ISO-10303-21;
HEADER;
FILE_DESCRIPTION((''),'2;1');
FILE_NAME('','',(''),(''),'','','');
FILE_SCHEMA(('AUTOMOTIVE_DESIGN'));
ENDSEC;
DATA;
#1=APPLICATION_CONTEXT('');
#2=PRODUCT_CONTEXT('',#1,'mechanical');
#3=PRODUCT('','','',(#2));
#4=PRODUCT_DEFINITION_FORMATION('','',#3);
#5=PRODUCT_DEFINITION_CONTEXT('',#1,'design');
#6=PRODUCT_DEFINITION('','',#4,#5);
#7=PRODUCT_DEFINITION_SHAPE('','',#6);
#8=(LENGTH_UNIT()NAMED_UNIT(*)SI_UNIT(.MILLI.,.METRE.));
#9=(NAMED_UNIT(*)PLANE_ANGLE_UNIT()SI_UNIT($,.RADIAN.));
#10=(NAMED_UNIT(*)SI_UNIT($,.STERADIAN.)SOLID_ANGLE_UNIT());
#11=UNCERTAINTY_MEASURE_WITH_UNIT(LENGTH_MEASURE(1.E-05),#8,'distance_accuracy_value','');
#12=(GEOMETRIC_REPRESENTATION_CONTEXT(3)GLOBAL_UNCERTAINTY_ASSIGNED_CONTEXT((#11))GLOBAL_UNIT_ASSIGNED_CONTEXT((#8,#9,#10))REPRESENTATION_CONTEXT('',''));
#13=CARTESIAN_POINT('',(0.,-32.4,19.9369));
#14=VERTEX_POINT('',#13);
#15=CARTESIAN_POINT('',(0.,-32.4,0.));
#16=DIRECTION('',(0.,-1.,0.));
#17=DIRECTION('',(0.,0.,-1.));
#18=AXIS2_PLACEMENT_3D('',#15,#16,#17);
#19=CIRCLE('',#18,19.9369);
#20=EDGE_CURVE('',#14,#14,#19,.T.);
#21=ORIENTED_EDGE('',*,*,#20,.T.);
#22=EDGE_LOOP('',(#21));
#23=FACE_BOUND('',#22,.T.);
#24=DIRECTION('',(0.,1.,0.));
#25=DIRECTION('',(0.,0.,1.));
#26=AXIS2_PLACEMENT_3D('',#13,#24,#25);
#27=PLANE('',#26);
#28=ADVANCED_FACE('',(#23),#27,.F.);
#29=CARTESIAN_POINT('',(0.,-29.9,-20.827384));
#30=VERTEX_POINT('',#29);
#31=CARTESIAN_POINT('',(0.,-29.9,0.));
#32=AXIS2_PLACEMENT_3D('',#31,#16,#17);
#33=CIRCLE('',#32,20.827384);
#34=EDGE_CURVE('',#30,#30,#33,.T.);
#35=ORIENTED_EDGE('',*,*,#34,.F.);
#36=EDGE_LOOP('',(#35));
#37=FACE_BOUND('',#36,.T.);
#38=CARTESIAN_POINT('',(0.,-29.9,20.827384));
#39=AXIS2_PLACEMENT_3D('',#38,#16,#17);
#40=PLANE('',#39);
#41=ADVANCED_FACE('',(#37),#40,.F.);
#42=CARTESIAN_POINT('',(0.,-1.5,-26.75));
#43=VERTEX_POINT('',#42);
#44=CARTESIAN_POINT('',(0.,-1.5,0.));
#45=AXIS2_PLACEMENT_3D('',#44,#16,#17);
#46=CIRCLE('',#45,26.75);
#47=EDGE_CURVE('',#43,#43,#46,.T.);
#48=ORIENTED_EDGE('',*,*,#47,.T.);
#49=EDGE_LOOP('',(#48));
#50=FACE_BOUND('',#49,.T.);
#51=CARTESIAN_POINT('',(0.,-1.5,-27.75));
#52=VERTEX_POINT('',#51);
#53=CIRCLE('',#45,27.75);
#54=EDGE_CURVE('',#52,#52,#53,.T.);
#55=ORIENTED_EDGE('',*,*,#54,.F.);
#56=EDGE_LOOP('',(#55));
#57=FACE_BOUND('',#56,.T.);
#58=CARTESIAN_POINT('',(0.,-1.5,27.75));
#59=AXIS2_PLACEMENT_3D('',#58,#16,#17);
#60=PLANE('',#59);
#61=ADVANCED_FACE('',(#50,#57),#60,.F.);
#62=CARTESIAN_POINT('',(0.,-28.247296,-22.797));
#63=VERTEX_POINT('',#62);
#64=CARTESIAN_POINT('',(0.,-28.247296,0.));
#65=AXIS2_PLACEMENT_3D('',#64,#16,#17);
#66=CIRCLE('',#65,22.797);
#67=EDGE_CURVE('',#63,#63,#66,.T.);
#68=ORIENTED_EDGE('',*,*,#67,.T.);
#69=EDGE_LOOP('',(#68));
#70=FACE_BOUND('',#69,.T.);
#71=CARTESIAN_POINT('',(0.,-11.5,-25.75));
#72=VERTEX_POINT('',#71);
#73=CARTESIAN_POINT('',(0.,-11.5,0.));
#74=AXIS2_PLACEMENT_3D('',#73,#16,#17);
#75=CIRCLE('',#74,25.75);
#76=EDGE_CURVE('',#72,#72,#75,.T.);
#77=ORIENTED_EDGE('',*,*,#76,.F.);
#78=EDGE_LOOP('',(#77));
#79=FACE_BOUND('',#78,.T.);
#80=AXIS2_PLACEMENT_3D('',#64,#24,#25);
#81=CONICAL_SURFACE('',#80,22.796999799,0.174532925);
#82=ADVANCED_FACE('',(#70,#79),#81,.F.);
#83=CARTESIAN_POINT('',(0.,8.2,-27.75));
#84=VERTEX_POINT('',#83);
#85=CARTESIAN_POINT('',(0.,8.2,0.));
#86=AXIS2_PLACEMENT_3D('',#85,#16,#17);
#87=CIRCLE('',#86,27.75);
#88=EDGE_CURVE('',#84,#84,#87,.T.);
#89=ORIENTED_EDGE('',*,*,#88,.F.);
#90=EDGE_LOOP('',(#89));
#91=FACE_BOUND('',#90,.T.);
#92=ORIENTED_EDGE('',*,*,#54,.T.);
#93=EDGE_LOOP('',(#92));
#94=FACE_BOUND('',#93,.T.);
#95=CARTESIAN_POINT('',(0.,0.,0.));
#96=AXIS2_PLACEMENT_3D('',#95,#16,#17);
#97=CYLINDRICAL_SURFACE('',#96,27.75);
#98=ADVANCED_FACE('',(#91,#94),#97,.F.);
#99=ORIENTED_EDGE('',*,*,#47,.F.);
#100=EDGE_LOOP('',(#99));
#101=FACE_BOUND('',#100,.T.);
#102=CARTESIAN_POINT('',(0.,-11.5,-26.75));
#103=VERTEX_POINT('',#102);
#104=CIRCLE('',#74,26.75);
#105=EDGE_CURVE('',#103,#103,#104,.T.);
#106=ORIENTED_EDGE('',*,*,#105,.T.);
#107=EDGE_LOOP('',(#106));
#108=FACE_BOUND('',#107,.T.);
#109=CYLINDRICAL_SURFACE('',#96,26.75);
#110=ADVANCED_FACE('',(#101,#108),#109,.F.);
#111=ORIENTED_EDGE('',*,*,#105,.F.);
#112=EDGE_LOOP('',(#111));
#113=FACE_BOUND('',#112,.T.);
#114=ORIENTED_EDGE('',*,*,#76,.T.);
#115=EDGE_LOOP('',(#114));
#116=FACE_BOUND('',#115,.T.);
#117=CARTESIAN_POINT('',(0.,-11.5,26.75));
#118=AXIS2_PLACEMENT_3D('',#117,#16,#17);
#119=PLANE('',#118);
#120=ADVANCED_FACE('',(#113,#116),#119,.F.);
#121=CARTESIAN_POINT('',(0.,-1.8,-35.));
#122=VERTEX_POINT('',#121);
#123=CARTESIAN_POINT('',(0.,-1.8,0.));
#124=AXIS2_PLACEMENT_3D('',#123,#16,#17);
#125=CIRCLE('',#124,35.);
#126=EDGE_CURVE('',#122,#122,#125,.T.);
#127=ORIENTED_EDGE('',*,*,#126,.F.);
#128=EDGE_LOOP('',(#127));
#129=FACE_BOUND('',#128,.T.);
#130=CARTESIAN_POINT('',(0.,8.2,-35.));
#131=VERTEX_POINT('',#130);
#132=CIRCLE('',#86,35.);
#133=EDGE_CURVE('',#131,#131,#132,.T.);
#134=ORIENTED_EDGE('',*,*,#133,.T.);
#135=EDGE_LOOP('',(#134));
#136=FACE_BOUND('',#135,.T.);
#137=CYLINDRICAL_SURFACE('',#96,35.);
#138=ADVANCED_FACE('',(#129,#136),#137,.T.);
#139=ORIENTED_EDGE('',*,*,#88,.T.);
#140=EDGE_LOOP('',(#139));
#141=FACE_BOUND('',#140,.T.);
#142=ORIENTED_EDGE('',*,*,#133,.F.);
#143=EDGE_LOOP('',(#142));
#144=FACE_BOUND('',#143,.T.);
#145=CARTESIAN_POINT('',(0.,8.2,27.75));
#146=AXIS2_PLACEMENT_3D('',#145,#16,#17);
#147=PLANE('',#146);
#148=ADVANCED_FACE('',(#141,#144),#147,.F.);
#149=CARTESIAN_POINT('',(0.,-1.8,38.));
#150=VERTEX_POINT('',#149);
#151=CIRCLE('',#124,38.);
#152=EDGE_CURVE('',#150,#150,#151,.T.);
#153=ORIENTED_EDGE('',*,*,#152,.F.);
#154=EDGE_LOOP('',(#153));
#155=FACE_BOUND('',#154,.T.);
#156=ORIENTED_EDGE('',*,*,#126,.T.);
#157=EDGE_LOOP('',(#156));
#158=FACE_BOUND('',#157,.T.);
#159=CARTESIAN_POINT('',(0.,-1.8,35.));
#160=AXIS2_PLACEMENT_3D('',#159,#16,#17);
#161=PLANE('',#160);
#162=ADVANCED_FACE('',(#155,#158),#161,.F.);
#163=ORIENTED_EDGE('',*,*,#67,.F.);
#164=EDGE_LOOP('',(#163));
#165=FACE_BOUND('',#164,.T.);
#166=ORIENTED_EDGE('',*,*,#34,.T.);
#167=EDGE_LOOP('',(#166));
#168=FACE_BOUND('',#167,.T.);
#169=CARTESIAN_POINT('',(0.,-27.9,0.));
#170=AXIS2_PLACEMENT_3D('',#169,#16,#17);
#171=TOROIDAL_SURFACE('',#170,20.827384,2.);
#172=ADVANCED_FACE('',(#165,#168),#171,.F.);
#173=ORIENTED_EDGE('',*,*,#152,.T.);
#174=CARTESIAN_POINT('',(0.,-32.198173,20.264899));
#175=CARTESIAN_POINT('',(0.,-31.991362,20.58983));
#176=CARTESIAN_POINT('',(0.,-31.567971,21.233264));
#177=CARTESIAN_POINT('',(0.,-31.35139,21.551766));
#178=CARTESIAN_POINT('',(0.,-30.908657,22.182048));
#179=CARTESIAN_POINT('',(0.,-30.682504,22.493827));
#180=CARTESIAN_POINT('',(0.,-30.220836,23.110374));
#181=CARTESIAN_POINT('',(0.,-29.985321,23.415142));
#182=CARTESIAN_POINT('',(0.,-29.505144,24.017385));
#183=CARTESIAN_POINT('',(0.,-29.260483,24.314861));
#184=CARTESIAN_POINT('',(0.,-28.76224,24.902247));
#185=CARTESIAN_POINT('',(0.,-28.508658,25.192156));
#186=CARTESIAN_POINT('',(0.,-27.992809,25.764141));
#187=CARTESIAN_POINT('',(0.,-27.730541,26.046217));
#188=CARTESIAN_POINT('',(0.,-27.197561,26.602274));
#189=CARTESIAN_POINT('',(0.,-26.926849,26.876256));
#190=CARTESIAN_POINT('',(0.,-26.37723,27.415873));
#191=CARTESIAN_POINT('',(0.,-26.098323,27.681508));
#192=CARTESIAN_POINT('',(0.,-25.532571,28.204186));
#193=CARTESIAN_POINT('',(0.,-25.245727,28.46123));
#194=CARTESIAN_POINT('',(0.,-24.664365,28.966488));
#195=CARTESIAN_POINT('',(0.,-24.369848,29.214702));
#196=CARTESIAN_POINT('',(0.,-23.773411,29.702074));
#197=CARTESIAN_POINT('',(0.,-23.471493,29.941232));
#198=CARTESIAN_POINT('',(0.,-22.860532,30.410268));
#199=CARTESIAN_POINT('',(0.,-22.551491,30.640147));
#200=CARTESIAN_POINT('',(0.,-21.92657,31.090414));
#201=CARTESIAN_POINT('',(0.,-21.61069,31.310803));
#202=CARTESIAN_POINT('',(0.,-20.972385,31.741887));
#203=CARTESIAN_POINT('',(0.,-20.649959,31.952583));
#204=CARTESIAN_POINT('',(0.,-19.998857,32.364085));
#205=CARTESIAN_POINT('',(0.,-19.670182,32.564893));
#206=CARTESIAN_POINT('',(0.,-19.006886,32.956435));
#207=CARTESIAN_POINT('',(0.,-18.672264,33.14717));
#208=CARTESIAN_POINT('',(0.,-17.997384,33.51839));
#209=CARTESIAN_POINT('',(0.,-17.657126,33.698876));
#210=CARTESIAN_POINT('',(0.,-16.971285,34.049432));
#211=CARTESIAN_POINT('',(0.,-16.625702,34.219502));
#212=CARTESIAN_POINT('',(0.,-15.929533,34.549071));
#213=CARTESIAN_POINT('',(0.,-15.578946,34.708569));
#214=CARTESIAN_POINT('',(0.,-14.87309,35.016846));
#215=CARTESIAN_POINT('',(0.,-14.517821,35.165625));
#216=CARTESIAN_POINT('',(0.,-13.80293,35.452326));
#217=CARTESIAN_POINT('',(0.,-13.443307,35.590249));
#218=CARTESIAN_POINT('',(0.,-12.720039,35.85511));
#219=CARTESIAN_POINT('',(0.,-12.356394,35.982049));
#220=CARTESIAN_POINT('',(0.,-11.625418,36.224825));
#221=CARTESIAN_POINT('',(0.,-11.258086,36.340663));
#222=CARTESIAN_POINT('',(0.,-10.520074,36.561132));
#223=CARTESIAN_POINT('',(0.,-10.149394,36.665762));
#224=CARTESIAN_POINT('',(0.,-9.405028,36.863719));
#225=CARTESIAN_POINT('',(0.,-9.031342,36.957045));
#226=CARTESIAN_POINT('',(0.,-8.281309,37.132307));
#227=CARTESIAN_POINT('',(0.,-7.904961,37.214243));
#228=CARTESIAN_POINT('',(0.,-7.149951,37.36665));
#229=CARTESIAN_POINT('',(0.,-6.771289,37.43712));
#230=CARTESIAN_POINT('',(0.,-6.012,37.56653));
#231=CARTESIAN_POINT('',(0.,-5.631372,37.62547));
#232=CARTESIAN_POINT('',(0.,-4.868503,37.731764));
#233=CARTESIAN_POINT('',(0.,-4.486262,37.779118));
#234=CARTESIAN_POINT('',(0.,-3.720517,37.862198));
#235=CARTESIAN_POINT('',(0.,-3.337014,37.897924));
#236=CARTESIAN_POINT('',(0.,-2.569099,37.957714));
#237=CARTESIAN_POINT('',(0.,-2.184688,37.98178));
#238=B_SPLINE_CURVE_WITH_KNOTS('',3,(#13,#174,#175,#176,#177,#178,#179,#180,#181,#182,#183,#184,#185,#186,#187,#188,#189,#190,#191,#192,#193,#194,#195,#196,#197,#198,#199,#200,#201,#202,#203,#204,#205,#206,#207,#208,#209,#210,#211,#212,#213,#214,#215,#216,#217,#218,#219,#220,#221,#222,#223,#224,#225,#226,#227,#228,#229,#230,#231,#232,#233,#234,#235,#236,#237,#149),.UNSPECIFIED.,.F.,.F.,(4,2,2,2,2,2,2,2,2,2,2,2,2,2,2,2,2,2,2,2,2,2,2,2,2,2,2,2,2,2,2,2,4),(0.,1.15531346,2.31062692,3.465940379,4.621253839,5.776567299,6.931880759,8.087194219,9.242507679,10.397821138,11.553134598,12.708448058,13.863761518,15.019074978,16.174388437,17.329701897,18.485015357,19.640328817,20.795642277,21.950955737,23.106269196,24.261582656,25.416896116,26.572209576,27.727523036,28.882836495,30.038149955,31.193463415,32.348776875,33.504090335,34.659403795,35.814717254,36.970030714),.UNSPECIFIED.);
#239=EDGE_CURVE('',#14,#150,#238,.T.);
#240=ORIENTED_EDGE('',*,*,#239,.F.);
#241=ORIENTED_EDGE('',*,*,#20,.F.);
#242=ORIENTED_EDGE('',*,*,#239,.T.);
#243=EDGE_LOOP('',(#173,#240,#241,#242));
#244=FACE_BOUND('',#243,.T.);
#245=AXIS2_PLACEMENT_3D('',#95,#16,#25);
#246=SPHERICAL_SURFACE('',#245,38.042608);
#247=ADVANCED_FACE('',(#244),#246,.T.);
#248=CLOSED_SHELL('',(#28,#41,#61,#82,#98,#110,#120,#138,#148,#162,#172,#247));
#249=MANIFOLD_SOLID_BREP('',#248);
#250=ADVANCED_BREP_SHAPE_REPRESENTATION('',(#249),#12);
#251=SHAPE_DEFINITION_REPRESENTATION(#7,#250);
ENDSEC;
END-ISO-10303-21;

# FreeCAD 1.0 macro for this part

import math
import FreeCAD as App
import Part
import Sketcher
from FreeCAD import Vector
Q = App.Units.Quantity

doc = App.newDocument("Part")
body = doc.addObject("PartDesign::Body", "Body")

sketch1 = body.newObject("Sketcher::SketchObject", "Sketch")
sketch1.AttachmentSupport = (doc.getObject("YZ_Plane"), [""])
sketch1.MapMode = "FlatFace"
sketch1.addGeometry(Part.LineSegment(Vector(-1.5, 26.8, 0), Vector(-1.5, 27.8, 0)), False)
sketch1.addGeometry(Part.LineSegment(Vector(-1.5, 27.8, 0), Vector(8.2, 27.8, 0)), False)
sketch1.addGeometry(Part.LineSegment(Vector(8.2, 27.8, 0), Vector(8.2, 35, 0)), False)
sketch1.addGeometry(Part.LineSegment(Vector(8.2, 35, 0), Vector(-1.8, 35, 0)), False)
sketch1.addGeometry(Part.LineSegment(Vector(-1.8, 35, 0), Vector(-1.8, 38, 0)), False)
sketch1.addGeometry(Part.ArcOfCircle(Part.Circle(Vector(0, 0, 0), Vector(0, 0, 1), 38), math.radians(93), math.radians(148)), False)
sketch1.addGeometry(Part.LineSegment(Vector(-32.4, 19.9, 0), Vector(-32.4, 0, 0)), False)
sketch1.addGeometry(Part.LineSegment(Vector(-32.4, 0, 0), Vector(-29.9, 0, 0)), False)
sketch1.addGeometry(Part.LineSegment(Vector(-29.9, 0, 0), Vector(-29.9, 20.8, 0)), False)
sketch1.addGeometry(Part.ArcOfCircle(Part.Circle(Vector(-27.9, 20.8, 0), Vector(0, 0, 1), 2), math.radians(100), math.radians(180)), False)
sketch1.addGeometry(Part.LineSegment(Vector(-28.2, 22.8, 0), Vector(-11.5, 25.8, 0)), False)
sketch1.addGeometry(Part.LineSegment(Vector(-11.5, 25.8, 0), Vector(-11.5, 26.8, 0)), False)
sketch1.addGeometry(Part.LineSegment(Vector(-11.5, 26.8, 0), Vector(-1.5, 26.8, 0)), False)
sketch1.addConstraint(Sketcher.Constraint("Coincident", 0, 2, 1, 1))
sketch1.addConstraint(Sketcher.Constraint("Coincident", 1, 2, 2, 1))
sketch1.addConstraint(Sketcher.Constraint("Coincident", 2, 2, 3, 1))
sketch1.addConstraint(Sketcher.Constraint("Coincident", 3, 2, 4, 1))
sketch1.addConstraint(Sketcher.Constraint("Coincident", 4, 2, 5, 1))
sketch1.addConstraint(Sketcher.Constraint("Coincident", 5, 2, 6, 1))
sketch1.addConstraint(Sketcher.Constraint("Coincident", 6, 2, 7, 1))
sketch1.addConstraint(Sketcher.Constraint("Coincident", 7, 2, 8, 1))
sketch1.addConstraint(Sketcher.Constraint("Tangent", 8, 2, 9, 2))
sketch1.addConstraint(Sketcher.Constraint("Tangent", 9, 1, 10, 1))
sketch1.addConstraint(Sketcher.Constraint("Coincident", 10, 2, 11, 1))
sketch1.addConstraint(Sketcher.Constraint("Coincident", 11, 2, 12, 1))
sketch1.addConstraint(Sketcher.Constraint("Coincident", 12, 2, 0, 1))
sketch1.addConstraint(Sketcher.Constraint("Vertical", 0))
sketch1.addConstraint(Sketcher.Constraint("Horizontal", 1))
sketch1.addConstraint(Sketcher.Constraint("Vertical", 2))
sketch1.addConstraint(Sketcher.Constraint("Horizontal", 3))
sketch1.addConstraint(Sketcher.Constraint("Vertical", 4))
sketch1.addConstraint(Sketcher.Constraint("Vertical", 6))
sketch1.addConstraint(Sketcher.Constraint("Horizontal", 7))
sketch1.addConstraint(Sketcher.Constraint("Vertical", 8))
sketch1.addConstraint(Sketcher.Constraint("Vertical", 11))
sketch1.addConstraint(Sketcher.Constraint("Horizontal", 12))
sketch1.addConstraint(Sketcher.Constraint("Coincident", 5, 3, -1, 1))
sketch1.addConstraint(Sketcher.Constraint("PointOnObject", 6, 2, -1))
sketch1.addConstraint(Sketcher.Constraint("Equal", 3, 12))
sketch1.addConstraint(Sketcher.Constraint("Equal", 0, 11))
sketch1.addConstraint(Sketcher.Constraint("Radius", 9, 2.0))
sketch1.addConstraint(Sketcher.Constraint("DistanceX", 3, 2, 3, 1, 10.0))
sketch1.addConstraint(Sketcher.Constraint("DistanceY", 0, 1, 0, 2, 1.0))
sketch1.addConstraint(Sketcher.Constraint("DistanceY", 4, 1, 4, 2, 3.0))
sketch1.addConstraint(Sketcher.Constraint("Angle", 10, Q("10 deg")))
sketch1.addConstraint(Sketcher.Constraint("DistanceX", 1, 1, 1, 2, 9.7))
sketch1.addConstraint(Sketcher.Constraint("DistanceX", 7, 1, 7, 2, 2.5))
sketch1.addConstraint(Sketcher.Constraint("DistanceY", -1, 1, 2, 2, 35.0))
sketch1.addConstraint(Sketcher.Constraint("DistanceY", 2, 1, 2, 2, 7.25))
sketch1.addConstraint(Sketcher.Constraint("DistanceX", 9, 3, -1, 1, 27.9))
sketch1.addConstraint(Sketcher.Constraint("DistanceX", 0, 2, -1, 1, 1.5))
revolution = body.newObject("PartDesign::Revolution", "Revolution")
revolution.Profile = sketch1
revolution.ReferenceAxis = (sketch1, ["H_Axis"])
revolution.Angle = 360

doc.recompute()
